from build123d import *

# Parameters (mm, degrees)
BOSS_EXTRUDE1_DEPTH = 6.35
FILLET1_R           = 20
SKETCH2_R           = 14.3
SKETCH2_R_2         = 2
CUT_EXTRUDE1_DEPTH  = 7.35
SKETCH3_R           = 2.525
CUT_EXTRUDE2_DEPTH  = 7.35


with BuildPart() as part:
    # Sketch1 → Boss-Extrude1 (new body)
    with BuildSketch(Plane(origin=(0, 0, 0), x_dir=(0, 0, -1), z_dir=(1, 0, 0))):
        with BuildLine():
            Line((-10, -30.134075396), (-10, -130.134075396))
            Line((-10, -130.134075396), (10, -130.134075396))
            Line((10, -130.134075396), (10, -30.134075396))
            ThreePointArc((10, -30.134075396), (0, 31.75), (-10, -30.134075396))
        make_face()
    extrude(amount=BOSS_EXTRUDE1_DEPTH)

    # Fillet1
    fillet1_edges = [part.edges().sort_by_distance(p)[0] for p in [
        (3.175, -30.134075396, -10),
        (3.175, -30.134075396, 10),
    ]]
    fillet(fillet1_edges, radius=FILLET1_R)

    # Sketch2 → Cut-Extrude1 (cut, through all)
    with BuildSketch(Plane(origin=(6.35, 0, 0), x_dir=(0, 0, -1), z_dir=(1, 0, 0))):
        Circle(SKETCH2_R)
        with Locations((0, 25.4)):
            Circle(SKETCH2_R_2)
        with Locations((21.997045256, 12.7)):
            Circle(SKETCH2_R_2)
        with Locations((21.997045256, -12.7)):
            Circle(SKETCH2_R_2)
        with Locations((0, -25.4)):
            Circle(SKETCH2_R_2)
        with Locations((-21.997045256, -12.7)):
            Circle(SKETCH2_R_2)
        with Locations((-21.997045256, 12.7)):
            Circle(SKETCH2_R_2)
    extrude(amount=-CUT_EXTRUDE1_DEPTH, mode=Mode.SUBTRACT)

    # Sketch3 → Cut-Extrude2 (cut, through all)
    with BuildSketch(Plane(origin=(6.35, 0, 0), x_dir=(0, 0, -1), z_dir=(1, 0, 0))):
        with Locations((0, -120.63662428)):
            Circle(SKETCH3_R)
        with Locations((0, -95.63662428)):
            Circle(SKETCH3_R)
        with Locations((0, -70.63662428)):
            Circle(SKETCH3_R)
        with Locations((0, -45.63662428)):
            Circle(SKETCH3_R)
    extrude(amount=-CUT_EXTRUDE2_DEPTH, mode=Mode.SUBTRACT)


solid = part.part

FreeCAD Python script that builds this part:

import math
import FreeCAD as App
import Part
import Sketcher


def edges_at(feature, points):
    """Names of the edges that pass closest to the given points."""
    edges = feature.Shape.Edges
    near = lambda p: min(range(len(edges)), key=lambda i: edges[i].distToShape(Part.Vertex(*p))[0])
    return sorted({f"Edge{near(p) + 1}" for p in points})

doc = App.newDocument("Part")
params = doc.addObject("Spreadsheet::Sheet", "Params")
for row, (alias, value) in enumerate([
    ("sketch1_width", "100 mm"),
    ("sketch1_height", "20 mm"),
    ("sketch1_radius", "31.75 mm"),
    ("pad1_length", "6.35 mm"),
    ("fillet_radius", "20 mm"),
    ("sketch2_diameter", "4 mm"),
    ("sketch2_diameter2", "28.6 mm"),
    ("sketch3_diameter", "5.05 mm"),
], start=1):
    params.set(f"A{row}", alias)
    params.set(f"B{row}", "=" + value)
    params.setAlias(f"B{row}", alias)

body = doc.addObject("PartDesign::Body", "Body")

# Sketch on YZ plane
sketch1 = body.newObject("Sketcher::SketchObject", "Sketch")
sketch1.AttachmentSupport = (doc.getObject("YZ_Plane"), [""])
sketch1.MapMode = "FlatFace"
sketch1.addGeometry([
    Part.LineSegment(App.Vector(-30, 10, 0), App.Vector(-130, 10, 0)),
    Part.LineSegment(App.Vector(-130, 10, 0), App.Vector(-130, -10, 0)),
    Part.LineSegment(App.Vector(-130, -10, 0), App.Vector(-30, -10, 0)),
    Part.ArcOfCircle(Part.Circle(App.Vector(0, 0, 0), App.Vector(0, 0, 1), 32), math.radians(-162), math.radians(162)),
], False)
sketch1.addConstraint([
    Sketcher.Constraint("Coincident", 0, 2, 1, 1),
    Sketcher.Constraint("Coincident", 1, 2, 2, 1),
    Sketcher.Constraint("Coincident", 2, 2, 3, 1),
    Sketcher.Constraint("Coincident", 3, 2, 0, 1),
    Sketcher.Constraint("Horizontal", 0),
    Sketcher.Constraint("Vertical", 1),
    Sketcher.Constraint("Horizontal", 2),
    Sketcher.Constraint("Coincident", 3, 3, -1, 1),
    Sketcher.Constraint("Vertical", 2, 2, 3, 2),
    Sketcher.Constraint("DistanceX", 0, 2, 0, 1, 100.0),
    Sketcher.Constraint("DistanceY", 1, 2, 1, 1, 20.0),
    Sketcher.Constraint("Radius", 3, 31.75),
])
sketch1.setExpression("Constraints[9]", "Params.sketch1_width")
sketch1.setExpression("Constraints[10]", "Params.sketch1_height")
sketch1.setExpression("Constraints[11]", "Params.sketch1_radius")
pad1 = body.newObject("PartDesign::Pad", "Pad")
pad1.Profile = sketch1
pad1.setExpression("Length", "Params.pad1_length")
doc.recompute()

fillet = body.newObject("PartDesign::Fillet", "Fillet")
fillet.Base = (pad1, edges_at(pad1, [(3.175, -30.134, -10), (3.175, -30.134, 10)]))
fillet.setExpression("Radius", "Params.fillet_radius")

# Sketch on YZ plane
sketch2 = body.newObject("Sketcher::SketchObject", "Sketch001")
sketch2.AttachmentSupport = (doc.getObject("YZ_Plane"), [""])
sketch2.MapMode = "FlatFace"
sketch2.AttachmentOffset = App.Placement(App.Vector(0, 0, 6.35), App.Rotation())
sketch2.addGeometry([
    Part.Circle(App.Vector(0, 0, 0), App.Vector(0, 0, 1), 14.3),  # 0
    Part.Circle(App.Vector(25.4, 0, 0), App.Vector(0, 0, 1), 2),  # 1
    Part.Circle(App.Vector(12.7, -22, 0), App.Vector(0, 0, 1), 2),  # 2
    Part.Circle(App.Vector(-12.7, -22, 0), App.Vector(0, 0, 1), 2),  # 3
    Part.Circle(App.Vector(-25.4, 0, 0), App.Vector(0, 0, 1), 2),  # 4
    Part.Circle(App.Vector(-12.7, 22, 0), App.Vector(0, 0, 1), 2),  # 5
    Part.Circle(App.Vector(12.7, 22, 0), App.Vector(0, 0, 1), 2),  # 6
], False)
sketch2.addConstraint([
    Sketcher.Constraint("Coincident", 0, 3, -1, 1),
    Sketcher.Constraint("Equal", 1, 2),
    Sketcher.Constraint("Equal", 2, 3),
    Sketcher.Constraint("Equal", 3, 4),
    Sketcher.Constraint("Equal", 4, 5),
    Sketcher.Constraint("Equal", 5, 6),
    Sketcher.Constraint("Symmetric", 1, 3, 4, 3, -1, 1),
    Sketcher.Constraint("Symmetric", 2, 3, 5, 3, -1, 1),
    Sketcher.Constraint("Symmetric", 3, 3, 6, 3, -1, 1),
    Sketcher.Constraint("Symmetric", 2, 3, 3, 3, -2),
    Sketcher.Constraint("PointOnObject", 1, 3, -1),
    Sketcher.Constraint("Diameter", 1, 4.0),
    Sketcher.Constraint("Diameter", 0, 28.6),
    Sketcher.Constraint("DistanceX", -1, 1, 1, 3, 25.4),
    Sketcher.Constraint("DistanceX", -1, 1, 2, 3, 12.7),
    Sketcher.Constraint("DistanceY", 3, 3, 5, 3, 43.994091),
])
sketch2.setExpression("Constraints[11]", "Params.sketch2_diameter")
sketch2.setExpression("Constraints[12]", "Params.sketch2_diameter2")
pocket1 = body.newObject("PartDesign::Pocket", "Pocket")
pocket1.Profile = sketch2
pocket1.Type = "ThroughAll"

# Sketch on YZ plane
sketch3 = body.newObject("Sketcher::SketchObject", "Sketch002")
sketch3.AttachmentSupport = (doc.getObject("YZ_Plane"), [""])
sketch3.MapMode = "FlatFace"
sketch3.AttachmentOffset = App.Placement(App.Vector(0, 0, 6.35), App.Rotation())
sketch3.addGeometry([
    Part.Circle(App.Vector(-120.6, 0, 0), App.Vector(0, 0, 1), 2.5),
    Part.Circle(App.Vector(-95.6, 0, 0), App.Vector(0, 0, 1), 2.5),
    Part.Circle(App.Vector(-70.6, 0, 0), App.Vector(0, 0, 1), 2.5),
    Part.Circle(App.Vector(-45.6, 0, 0), App.Vector(0, 0, 1), 2.5),
], False)
sketch3.addConstraint([
    Sketcher.Constraint("Equal", 0, 1),
    Sketcher.Constraint("Equal", 1, 2),
    Sketcher.Constraint("Equal", 2, 3),
    Sketcher.Constraint("PointOnObject", 0, 3, -1),
    Sketcher.Constraint("PointOnObject", 1, 3, -1),
    Sketcher.Constraint("PointOnObject", 2, 3, -1),
    Sketcher.Constraint("PointOnObject", 3, 3, -1),
    Sketcher.Constraint("Diameter", 0, 5.05),
    Sketcher.Constraint("DistanceX", 0, 3, 1, 3, 25.0),
    Sketcher.Constraint("DistanceX", 1, 3, 2, 3, 25.0),
    Sketcher.Constraint("DistanceX", 2, 3, 3, 3, 25.0),
    Sketcher.Constraint("DistanceX", 0, 3, -1, 1, 120.636624),
])
sketch3.setExpression("Constraints[7]", "Params.sketch3_diameter")
pocket2 = body.newObject("PartDesign::Pocket", "Pocket001")
pocket2.Profile = sketch3
pocket2.Type = "ThroughAll"

doc.recompute()
